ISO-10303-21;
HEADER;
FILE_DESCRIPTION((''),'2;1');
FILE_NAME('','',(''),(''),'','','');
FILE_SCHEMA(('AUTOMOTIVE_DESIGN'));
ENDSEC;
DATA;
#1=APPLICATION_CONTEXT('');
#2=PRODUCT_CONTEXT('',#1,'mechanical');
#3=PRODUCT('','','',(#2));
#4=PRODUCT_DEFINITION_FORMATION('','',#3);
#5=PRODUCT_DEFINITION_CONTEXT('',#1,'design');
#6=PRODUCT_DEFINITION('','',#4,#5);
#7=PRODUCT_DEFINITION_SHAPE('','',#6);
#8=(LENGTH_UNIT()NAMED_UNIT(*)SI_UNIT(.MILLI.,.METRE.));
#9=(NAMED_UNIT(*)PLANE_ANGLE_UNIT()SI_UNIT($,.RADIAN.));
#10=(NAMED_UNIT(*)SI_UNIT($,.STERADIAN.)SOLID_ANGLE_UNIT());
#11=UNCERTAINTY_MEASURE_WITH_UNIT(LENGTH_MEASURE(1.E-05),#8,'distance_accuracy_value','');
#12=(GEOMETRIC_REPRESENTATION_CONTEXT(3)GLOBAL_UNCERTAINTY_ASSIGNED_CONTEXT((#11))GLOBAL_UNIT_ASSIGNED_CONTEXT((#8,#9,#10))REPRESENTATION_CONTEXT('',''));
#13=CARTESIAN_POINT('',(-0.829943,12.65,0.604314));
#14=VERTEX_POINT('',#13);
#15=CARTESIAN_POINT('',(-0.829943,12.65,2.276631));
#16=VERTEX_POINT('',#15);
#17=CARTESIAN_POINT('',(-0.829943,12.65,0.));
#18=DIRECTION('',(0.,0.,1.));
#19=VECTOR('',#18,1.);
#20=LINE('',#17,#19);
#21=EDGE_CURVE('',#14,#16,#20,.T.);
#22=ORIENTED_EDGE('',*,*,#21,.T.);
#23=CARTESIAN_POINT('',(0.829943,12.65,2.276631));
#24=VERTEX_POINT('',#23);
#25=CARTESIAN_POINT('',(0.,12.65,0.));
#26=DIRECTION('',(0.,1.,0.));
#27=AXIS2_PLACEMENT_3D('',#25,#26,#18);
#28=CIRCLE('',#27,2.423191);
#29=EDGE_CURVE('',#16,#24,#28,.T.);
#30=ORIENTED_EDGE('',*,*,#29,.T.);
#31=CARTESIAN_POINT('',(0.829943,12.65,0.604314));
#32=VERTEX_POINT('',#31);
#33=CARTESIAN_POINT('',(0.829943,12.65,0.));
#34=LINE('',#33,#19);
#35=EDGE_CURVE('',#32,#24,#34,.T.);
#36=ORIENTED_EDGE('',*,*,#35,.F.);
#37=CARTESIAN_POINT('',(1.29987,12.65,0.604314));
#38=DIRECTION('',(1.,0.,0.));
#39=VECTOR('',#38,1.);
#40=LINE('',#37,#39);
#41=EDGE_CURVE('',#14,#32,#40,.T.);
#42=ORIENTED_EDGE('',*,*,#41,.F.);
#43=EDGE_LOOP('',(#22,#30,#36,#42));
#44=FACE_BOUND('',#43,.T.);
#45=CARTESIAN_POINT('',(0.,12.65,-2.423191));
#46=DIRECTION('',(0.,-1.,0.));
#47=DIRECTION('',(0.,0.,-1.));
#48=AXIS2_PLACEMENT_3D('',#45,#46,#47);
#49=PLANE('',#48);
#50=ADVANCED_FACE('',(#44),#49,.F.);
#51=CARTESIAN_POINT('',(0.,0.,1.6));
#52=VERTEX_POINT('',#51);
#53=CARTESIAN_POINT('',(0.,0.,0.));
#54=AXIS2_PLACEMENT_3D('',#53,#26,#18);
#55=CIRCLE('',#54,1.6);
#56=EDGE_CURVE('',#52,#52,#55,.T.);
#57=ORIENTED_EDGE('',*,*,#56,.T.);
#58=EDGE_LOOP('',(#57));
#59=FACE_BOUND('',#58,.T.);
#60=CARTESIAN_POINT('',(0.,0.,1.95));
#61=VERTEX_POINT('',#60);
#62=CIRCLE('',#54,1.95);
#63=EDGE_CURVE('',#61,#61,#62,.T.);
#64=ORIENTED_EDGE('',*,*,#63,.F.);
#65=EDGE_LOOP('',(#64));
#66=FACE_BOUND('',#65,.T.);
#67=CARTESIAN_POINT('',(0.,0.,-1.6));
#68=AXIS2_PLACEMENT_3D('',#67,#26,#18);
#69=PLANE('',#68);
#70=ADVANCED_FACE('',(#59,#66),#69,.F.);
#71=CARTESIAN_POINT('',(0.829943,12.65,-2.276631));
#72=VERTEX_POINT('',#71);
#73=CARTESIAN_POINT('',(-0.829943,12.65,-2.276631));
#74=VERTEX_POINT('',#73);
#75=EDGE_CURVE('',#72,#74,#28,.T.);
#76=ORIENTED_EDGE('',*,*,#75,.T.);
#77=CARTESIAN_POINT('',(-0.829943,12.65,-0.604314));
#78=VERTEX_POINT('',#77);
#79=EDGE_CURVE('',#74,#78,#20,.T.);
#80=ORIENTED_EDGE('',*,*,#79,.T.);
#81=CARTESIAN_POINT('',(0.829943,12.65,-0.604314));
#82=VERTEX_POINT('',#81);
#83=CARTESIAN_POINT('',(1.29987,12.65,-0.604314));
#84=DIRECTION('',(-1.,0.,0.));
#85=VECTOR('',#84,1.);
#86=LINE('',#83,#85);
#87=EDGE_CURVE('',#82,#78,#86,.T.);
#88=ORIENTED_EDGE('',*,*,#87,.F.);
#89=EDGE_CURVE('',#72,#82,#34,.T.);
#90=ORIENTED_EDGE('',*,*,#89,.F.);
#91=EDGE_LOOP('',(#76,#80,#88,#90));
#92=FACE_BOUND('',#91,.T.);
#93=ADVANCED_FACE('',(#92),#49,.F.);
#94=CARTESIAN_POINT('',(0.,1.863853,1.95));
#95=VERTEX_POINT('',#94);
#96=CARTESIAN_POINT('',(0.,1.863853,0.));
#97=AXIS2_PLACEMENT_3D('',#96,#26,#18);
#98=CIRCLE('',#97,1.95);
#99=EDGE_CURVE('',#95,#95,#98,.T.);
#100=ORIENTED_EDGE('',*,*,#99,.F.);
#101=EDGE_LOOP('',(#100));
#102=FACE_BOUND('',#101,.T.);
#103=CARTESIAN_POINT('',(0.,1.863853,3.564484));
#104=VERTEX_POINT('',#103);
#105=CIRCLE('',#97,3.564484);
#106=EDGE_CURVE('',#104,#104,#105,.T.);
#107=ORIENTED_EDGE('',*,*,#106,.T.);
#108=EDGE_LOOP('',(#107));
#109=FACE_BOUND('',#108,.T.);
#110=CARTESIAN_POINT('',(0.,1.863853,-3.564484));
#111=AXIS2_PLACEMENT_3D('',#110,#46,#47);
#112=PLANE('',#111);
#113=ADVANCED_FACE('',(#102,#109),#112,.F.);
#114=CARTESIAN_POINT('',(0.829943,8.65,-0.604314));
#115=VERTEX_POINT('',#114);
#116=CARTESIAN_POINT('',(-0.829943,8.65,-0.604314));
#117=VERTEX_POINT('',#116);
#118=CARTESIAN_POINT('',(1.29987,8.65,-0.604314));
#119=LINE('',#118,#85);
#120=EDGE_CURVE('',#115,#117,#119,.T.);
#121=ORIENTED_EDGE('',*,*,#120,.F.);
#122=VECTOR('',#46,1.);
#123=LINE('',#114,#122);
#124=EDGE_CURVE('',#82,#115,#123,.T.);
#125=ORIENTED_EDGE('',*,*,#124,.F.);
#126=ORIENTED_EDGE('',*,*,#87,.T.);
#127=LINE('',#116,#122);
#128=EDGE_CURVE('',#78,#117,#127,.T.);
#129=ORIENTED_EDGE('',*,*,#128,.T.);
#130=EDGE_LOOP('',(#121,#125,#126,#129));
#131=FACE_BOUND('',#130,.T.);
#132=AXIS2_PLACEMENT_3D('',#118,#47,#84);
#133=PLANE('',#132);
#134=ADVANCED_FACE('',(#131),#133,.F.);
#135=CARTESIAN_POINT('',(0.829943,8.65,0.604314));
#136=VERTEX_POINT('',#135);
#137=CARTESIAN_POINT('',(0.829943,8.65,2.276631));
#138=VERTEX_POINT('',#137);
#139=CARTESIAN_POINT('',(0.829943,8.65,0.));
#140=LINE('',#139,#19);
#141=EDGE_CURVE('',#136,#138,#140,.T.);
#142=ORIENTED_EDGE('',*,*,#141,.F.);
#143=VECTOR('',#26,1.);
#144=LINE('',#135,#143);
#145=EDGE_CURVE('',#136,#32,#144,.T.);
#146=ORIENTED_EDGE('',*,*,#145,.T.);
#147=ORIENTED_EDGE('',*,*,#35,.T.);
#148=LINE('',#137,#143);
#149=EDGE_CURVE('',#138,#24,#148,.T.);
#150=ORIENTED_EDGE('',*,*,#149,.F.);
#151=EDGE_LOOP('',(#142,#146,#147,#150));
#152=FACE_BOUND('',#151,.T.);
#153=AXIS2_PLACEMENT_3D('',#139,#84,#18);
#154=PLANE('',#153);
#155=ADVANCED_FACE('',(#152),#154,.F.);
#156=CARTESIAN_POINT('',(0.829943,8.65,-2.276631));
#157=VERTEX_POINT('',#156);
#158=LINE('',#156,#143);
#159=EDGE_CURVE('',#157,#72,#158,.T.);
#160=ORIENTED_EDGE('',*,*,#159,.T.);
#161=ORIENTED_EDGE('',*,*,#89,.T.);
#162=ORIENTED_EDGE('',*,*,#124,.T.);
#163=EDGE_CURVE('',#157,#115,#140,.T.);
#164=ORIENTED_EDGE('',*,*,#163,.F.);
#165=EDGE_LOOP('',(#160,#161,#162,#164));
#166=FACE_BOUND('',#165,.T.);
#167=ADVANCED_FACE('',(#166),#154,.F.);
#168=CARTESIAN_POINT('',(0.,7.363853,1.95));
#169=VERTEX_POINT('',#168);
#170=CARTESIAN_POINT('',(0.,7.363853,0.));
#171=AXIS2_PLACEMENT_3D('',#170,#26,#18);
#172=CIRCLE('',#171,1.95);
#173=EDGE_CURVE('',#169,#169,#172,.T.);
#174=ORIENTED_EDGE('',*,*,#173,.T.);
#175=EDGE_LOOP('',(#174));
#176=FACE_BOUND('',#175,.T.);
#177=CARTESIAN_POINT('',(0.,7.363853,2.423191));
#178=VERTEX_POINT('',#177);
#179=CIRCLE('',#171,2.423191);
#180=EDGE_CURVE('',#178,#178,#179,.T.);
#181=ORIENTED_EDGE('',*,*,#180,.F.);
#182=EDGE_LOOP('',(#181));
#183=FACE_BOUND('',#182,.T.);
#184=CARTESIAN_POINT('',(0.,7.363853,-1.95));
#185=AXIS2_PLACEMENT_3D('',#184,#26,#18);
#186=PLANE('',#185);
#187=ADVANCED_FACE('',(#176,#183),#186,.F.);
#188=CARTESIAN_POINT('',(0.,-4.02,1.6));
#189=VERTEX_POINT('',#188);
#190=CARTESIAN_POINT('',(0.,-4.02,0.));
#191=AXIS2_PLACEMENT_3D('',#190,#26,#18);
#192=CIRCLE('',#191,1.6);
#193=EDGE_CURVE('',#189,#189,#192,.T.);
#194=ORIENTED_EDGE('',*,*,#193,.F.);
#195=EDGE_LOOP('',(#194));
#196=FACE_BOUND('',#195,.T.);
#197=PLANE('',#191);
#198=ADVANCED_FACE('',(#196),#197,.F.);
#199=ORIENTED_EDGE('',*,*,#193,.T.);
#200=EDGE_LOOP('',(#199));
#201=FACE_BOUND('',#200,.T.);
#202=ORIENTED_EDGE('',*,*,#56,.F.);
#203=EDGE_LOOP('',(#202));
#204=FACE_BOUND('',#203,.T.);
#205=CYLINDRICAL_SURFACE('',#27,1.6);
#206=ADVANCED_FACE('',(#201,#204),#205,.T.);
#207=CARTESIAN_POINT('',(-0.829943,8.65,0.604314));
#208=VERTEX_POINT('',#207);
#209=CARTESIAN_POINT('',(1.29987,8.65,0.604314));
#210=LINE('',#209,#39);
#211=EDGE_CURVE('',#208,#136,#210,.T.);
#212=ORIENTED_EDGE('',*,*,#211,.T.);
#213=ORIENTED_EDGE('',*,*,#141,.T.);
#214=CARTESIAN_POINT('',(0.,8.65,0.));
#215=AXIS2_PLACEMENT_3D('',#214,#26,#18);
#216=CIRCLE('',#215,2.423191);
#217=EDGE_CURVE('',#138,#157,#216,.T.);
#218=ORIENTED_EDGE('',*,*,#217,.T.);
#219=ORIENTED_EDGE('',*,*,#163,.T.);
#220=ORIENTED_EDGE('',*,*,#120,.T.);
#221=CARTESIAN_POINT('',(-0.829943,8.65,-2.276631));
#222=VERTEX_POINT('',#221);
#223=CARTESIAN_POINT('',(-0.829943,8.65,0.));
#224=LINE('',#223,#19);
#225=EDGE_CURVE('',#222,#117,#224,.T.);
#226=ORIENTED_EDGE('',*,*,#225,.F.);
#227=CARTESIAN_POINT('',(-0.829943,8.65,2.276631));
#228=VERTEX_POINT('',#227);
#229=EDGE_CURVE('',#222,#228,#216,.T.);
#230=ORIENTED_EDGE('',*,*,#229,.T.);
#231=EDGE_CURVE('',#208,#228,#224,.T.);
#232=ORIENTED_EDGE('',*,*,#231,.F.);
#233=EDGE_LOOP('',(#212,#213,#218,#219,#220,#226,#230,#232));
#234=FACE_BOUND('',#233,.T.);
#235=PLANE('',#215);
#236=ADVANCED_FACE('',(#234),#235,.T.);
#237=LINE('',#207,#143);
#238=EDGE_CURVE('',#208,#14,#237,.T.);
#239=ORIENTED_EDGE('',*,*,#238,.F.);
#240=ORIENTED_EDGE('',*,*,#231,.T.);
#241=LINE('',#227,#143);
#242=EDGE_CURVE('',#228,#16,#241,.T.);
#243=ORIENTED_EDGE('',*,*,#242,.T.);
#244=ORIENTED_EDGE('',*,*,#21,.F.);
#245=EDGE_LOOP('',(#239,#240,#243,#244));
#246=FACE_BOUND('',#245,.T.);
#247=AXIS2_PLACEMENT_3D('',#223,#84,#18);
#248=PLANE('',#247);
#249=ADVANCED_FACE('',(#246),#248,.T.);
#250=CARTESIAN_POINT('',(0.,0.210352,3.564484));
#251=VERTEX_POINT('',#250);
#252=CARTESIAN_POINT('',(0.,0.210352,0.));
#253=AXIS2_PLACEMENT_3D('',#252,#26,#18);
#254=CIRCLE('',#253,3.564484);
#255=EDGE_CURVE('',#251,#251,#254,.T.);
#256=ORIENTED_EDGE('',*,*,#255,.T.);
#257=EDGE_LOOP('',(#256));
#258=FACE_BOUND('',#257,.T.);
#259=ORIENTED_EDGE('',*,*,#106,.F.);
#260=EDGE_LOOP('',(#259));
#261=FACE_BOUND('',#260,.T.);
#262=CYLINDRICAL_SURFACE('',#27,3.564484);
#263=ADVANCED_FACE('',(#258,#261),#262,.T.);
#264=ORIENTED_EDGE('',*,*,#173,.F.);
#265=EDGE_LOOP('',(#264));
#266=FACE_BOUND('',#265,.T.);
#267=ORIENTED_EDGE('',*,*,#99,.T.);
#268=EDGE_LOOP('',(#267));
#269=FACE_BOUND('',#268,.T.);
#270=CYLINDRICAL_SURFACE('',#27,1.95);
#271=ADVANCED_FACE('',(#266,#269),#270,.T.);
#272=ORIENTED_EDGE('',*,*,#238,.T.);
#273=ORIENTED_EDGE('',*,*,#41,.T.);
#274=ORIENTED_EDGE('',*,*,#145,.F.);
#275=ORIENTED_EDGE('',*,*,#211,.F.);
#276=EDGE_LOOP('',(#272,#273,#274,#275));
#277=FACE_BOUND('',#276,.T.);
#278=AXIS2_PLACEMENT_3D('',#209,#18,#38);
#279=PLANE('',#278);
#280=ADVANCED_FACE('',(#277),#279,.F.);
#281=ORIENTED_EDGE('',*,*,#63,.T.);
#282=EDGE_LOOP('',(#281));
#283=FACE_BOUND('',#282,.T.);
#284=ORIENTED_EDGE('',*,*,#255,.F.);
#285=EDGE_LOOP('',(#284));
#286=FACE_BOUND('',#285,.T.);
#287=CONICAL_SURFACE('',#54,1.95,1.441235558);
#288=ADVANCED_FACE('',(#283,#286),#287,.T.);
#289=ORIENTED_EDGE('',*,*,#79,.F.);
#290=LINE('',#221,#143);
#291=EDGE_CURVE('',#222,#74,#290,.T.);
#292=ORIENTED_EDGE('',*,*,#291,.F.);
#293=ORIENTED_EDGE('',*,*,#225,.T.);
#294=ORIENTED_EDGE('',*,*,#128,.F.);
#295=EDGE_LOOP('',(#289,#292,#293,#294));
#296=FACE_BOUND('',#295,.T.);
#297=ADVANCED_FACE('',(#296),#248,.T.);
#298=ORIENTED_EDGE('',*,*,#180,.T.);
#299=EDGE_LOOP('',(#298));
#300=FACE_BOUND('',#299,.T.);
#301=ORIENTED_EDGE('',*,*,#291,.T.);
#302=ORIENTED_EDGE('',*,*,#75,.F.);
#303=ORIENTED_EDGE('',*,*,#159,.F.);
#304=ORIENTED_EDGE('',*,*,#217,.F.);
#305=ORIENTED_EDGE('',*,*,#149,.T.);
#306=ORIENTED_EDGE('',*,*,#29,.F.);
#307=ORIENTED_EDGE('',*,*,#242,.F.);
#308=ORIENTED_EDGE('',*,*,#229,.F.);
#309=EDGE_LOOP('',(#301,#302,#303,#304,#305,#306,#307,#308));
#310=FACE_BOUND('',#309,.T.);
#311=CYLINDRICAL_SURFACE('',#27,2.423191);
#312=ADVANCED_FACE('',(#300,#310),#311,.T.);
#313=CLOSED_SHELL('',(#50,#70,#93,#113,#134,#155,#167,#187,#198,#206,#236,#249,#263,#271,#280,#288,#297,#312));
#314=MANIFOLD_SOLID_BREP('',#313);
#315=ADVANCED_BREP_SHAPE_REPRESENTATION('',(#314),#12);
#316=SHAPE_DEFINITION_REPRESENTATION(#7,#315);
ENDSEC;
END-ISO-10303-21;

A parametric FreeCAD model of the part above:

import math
import FreeCAD as App
import Part
import Sketcher

V = App.Vector

doc = App.newDocument("Part")
body = doc.addObject("PartDesign::Body", "Body")

sketch1 = body.newObject("Sketcher::SketchObject", "Sketch")
sketch1.AttachmentSupport = (doc.getObject("YZ_Plane"), [""])
sketch1.MapMode = "FlatFace"
sketch1.addGeometry([
    Part.LineSegment(V(12.65, 0, 0), V(-4.02, 0, 0)),
    Part.LineSegment(V(-4.02, 0, 0), V(-4.02, -1.6, 0)),
    Part.LineSegment(V(-4.02, -1.6, 0), V(0, -1.6, 0)),
    Part.LineSegment(V(0, -1.6, 0), V(0, -1.95, 0)),
    Part.LineSegment(V(0, -1.95, 0), V(0.21, -3.56, 0)),
    Part.LineSegment(V(0.21, -3.56, 0), V(1.86, -3.56, 0)),
    Part.LineSegment(V(1.86, -3.56, 0), V(1.86, -1.95, 0)),
    Part.LineSegment(V(1.86, -1.95, 0), V(7.36, -1.95, 0)),
    Part.LineSegment(V(7.36, -1.95, 0), V(7.36, -2.42, 0)),
    Part.LineSegment(V(7.36, -2.42, 0), V(12.65, -2.42, 0)),
    Part.LineSegment(V(12.65, -2.42, 0), V(12.65, 0, 0)),
], False)
sketch1.addConstraint([
    Sketcher.Constraint("Coincident", 0, 2, 1, 1),
    Sketcher.Constraint("Coincident", 1, 2, 2, 1),
    Sketcher.Constraint("Coincident", 2, 2, 3, 1),
    Sketcher.Constraint("Coincident", 3, 2, 4, 1),
    Sketcher.Constraint("Coincident", 4, 2, 5, 1),
    Sketcher.Constraint("Coincident", 5, 2, 6, 1),
    Sketcher.Constraint("Coincident", 6, 2, 7, 1),
    Sketcher.Constraint("Coincident", 7, 2, 8, 1),
    Sketcher.Constraint("Coincident", 8, 2, 9, 1),
    Sketcher.Constraint("Coincident", 9, 2, 10, 1),
    Sketcher.Constraint("Coincident", 10, 2, 0, 1),
    Sketcher.Constraint("Horizontal", 0),
    Sketcher.Constraint("Vertical", 1),
    Sketcher.Constraint("Horizontal", 2),
    Sketcher.Constraint("Vertical", 3),
    Sketcher.Constraint("Horizontal", 5),
    Sketcher.Constraint("Vertical", 6),
    Sketcher.Constraint("Horizontal", 7),
    Sketcher.Constraint("Vertical", 8),
    Sketcher.Constraint("Horizontal", 9),
    Sketcher.Constraint("Vertical", 10),
    Sketcher.Constraint("PointOnObject", 0, 2, -1),
    Sketcher.Constraint("PointOnObject", 2, 2, -2),
    Sketcher.Constraint("Horizontal", 3, 2, 6, 2),
    Sketcher.Constraint("DistanceX", 7, 1, 7, 2, 5.5),
    Sketcher.Constraint("DistanceY", 1, 2, 1, 1, 1.6),
    Sketcher.Constraint("DistanceX", 0, 2, 0, 1, 16.67),
    Sketcher.Constraint("DistanceX", 2, 1, 2, 2, 4.02),
    Sketcher.Constraint("DistanceY", 3, 2, 3, 1, 0.35),
    Sketcher.Constraint("DistanceX", 5, 1, 5, 2, 1.653501),
    Sketcher.Constraint("DistanceY", 8, 2, 8, 1, 0.473191),
    Sketcher.Constraint("Distance", 4, 1.62813),
    Sketcher.Constraint("DistanceX", 9, 1, 9, 2, 5.286147),
])
revolution = body.newObject("PartDesign::Revolution", "Revolution")
revolution.Profile = sketch1
revolution.ReferenceAxis = (sketch1, ["H_Axis"])
revolution.Angle = 360

sketch2 = body.newObject("Sketcher::SketchObject", "Sketch001")
sketch2.AttachmentSupport = (doc.getObject("XZ_Plane"), [""])
sketch2.MapMode = "FlatFace"
sketch2.AttachmentOffset = App.Placement(V(0, 0, -8.65), App.Rotation())
sketch2.addGeometry([
    Part.ArcOfCircle(Part.Circle(V(0, 0, 0), V(0, 0, 1), 2.4), math.radians(-70), math.radians(0)),
    Part.LineSegment(V(0.8, -2.3, 0), V(0.8, 2.3, 0)),
    Part.ArcOfCircle(Part.Circle(V(0, 0, 0), V(0, 0, 1), 2.4), math.radians(0), math.radians(70)),
    Part.LineSegment(V(-0.8, 2.3, 0), V(-0.8, -2.3, 0)),
    Part.ArcOfCircle(Part.Circle(V(0, 0, 0), V(0, 0, 1), 2.4), math.radians(110), math.radians(250)),
], False)
sketch2.addConstraint([
    Sketcher.Constraint("Coincident", 0, 1, 1, 1),
    Sketcher.Constraint("Coincident", 1, 2, 2, 2),
    Sketcher.Constraint("Tangent", 2, 1, 0, 2),
    Sketcher.Constraint("Coincident", 3, 1, 4, 1),
    Sketcher.Constraint("Coincident", 4, 2, 3, 2),
    Sketcher.Constraint("Vertical", 1),
    Sketcher.Constraint("Vertical", 3),
    Sketcher.Constraint("Coincident", 0, 3, -1, 1),
    Sketcher.Constraint("Coincident", 4, 3, -1, 1),
    Sketcher.Constraint("Equal", 0, 2),
    Sketcher.Constraint("Equal", 2, 4),
    Sketcher.Constraint("PointOnObject", 2, 1, -1),
    Sketcher.Constraint("Horizontal", 1, 2, 3, 1),
    Sketcher.Constraint("Radius", 0, 2.423191),
    Sketcher.Constraint("DistanceY", 1, 1, 1, 2, 4.553263),
])
pocket1 = body.newObject("PartDesign::Pocket", "Pocket")
pocket1.Profile = sketch2
pocket1.Length = 4

sketch3 = body.newObject("Sketcher::SketchObject", "Sketch002")
sketch3.AttachmentSupport = (doc.getObject("XZ_Plane"), [""])
sketch3.MapMode = "FlatFace"
sketch3.AttachmentOffset = App.Placement(V(0, 0, -12.65), App.Rotation())
sketch3.addGeometry([
    Part.LineSegment(V(-1.3, -0.6, 0), V(-1.3, 0.6, 0)),
    Part.LineSegment(V(-1.3, 0.6, 0), V(1.3, 0.6, 0)),
    Part.LineSegment(V(1.3, 0.6, 0), V(1.3, -0.6, 0)),
    Part.LineSegment(V(1.3, -0.6, 0), V(-1.3, -0.6, 0)),
], False)
sketch3.addConstraint([
    Sketcher.Constraint("Coincident", 0, 2, 1, 1),
    Sketcher.Constraint("Coincident", 1, 2, 2, 1),
    Sketcher.Constraint("Coincident", 2, 2, 3, 1),
    Sketcher.Constraint("Coincident", 3, 2, 0, 1),
    Sketcher.Constraint("Vertical", 0),
    Sketcher.Constraint("Horizontal", 1),
    Sketcher.Constraint("Vertical", 2),
    Sketcher.Constraint("Horizontal", 3),
    Sketcher.Constraint("Symmetric", 0, 2, 2, 2, -1, 1),
    Sketcher.Constraint("DistanceX", 1, 1, 1, 2, 2.599739),
    Sketcher.Constraint("DistanceY", 0, 1, 0, 2, 1.208628),
])
pocket2 = body.newObject("PartDesign::Pocket", "Pocket001")
pocket2.Profile = sketch3
pocket2.Length = 4
pocket2.Reversed = True

doc.recompute()
